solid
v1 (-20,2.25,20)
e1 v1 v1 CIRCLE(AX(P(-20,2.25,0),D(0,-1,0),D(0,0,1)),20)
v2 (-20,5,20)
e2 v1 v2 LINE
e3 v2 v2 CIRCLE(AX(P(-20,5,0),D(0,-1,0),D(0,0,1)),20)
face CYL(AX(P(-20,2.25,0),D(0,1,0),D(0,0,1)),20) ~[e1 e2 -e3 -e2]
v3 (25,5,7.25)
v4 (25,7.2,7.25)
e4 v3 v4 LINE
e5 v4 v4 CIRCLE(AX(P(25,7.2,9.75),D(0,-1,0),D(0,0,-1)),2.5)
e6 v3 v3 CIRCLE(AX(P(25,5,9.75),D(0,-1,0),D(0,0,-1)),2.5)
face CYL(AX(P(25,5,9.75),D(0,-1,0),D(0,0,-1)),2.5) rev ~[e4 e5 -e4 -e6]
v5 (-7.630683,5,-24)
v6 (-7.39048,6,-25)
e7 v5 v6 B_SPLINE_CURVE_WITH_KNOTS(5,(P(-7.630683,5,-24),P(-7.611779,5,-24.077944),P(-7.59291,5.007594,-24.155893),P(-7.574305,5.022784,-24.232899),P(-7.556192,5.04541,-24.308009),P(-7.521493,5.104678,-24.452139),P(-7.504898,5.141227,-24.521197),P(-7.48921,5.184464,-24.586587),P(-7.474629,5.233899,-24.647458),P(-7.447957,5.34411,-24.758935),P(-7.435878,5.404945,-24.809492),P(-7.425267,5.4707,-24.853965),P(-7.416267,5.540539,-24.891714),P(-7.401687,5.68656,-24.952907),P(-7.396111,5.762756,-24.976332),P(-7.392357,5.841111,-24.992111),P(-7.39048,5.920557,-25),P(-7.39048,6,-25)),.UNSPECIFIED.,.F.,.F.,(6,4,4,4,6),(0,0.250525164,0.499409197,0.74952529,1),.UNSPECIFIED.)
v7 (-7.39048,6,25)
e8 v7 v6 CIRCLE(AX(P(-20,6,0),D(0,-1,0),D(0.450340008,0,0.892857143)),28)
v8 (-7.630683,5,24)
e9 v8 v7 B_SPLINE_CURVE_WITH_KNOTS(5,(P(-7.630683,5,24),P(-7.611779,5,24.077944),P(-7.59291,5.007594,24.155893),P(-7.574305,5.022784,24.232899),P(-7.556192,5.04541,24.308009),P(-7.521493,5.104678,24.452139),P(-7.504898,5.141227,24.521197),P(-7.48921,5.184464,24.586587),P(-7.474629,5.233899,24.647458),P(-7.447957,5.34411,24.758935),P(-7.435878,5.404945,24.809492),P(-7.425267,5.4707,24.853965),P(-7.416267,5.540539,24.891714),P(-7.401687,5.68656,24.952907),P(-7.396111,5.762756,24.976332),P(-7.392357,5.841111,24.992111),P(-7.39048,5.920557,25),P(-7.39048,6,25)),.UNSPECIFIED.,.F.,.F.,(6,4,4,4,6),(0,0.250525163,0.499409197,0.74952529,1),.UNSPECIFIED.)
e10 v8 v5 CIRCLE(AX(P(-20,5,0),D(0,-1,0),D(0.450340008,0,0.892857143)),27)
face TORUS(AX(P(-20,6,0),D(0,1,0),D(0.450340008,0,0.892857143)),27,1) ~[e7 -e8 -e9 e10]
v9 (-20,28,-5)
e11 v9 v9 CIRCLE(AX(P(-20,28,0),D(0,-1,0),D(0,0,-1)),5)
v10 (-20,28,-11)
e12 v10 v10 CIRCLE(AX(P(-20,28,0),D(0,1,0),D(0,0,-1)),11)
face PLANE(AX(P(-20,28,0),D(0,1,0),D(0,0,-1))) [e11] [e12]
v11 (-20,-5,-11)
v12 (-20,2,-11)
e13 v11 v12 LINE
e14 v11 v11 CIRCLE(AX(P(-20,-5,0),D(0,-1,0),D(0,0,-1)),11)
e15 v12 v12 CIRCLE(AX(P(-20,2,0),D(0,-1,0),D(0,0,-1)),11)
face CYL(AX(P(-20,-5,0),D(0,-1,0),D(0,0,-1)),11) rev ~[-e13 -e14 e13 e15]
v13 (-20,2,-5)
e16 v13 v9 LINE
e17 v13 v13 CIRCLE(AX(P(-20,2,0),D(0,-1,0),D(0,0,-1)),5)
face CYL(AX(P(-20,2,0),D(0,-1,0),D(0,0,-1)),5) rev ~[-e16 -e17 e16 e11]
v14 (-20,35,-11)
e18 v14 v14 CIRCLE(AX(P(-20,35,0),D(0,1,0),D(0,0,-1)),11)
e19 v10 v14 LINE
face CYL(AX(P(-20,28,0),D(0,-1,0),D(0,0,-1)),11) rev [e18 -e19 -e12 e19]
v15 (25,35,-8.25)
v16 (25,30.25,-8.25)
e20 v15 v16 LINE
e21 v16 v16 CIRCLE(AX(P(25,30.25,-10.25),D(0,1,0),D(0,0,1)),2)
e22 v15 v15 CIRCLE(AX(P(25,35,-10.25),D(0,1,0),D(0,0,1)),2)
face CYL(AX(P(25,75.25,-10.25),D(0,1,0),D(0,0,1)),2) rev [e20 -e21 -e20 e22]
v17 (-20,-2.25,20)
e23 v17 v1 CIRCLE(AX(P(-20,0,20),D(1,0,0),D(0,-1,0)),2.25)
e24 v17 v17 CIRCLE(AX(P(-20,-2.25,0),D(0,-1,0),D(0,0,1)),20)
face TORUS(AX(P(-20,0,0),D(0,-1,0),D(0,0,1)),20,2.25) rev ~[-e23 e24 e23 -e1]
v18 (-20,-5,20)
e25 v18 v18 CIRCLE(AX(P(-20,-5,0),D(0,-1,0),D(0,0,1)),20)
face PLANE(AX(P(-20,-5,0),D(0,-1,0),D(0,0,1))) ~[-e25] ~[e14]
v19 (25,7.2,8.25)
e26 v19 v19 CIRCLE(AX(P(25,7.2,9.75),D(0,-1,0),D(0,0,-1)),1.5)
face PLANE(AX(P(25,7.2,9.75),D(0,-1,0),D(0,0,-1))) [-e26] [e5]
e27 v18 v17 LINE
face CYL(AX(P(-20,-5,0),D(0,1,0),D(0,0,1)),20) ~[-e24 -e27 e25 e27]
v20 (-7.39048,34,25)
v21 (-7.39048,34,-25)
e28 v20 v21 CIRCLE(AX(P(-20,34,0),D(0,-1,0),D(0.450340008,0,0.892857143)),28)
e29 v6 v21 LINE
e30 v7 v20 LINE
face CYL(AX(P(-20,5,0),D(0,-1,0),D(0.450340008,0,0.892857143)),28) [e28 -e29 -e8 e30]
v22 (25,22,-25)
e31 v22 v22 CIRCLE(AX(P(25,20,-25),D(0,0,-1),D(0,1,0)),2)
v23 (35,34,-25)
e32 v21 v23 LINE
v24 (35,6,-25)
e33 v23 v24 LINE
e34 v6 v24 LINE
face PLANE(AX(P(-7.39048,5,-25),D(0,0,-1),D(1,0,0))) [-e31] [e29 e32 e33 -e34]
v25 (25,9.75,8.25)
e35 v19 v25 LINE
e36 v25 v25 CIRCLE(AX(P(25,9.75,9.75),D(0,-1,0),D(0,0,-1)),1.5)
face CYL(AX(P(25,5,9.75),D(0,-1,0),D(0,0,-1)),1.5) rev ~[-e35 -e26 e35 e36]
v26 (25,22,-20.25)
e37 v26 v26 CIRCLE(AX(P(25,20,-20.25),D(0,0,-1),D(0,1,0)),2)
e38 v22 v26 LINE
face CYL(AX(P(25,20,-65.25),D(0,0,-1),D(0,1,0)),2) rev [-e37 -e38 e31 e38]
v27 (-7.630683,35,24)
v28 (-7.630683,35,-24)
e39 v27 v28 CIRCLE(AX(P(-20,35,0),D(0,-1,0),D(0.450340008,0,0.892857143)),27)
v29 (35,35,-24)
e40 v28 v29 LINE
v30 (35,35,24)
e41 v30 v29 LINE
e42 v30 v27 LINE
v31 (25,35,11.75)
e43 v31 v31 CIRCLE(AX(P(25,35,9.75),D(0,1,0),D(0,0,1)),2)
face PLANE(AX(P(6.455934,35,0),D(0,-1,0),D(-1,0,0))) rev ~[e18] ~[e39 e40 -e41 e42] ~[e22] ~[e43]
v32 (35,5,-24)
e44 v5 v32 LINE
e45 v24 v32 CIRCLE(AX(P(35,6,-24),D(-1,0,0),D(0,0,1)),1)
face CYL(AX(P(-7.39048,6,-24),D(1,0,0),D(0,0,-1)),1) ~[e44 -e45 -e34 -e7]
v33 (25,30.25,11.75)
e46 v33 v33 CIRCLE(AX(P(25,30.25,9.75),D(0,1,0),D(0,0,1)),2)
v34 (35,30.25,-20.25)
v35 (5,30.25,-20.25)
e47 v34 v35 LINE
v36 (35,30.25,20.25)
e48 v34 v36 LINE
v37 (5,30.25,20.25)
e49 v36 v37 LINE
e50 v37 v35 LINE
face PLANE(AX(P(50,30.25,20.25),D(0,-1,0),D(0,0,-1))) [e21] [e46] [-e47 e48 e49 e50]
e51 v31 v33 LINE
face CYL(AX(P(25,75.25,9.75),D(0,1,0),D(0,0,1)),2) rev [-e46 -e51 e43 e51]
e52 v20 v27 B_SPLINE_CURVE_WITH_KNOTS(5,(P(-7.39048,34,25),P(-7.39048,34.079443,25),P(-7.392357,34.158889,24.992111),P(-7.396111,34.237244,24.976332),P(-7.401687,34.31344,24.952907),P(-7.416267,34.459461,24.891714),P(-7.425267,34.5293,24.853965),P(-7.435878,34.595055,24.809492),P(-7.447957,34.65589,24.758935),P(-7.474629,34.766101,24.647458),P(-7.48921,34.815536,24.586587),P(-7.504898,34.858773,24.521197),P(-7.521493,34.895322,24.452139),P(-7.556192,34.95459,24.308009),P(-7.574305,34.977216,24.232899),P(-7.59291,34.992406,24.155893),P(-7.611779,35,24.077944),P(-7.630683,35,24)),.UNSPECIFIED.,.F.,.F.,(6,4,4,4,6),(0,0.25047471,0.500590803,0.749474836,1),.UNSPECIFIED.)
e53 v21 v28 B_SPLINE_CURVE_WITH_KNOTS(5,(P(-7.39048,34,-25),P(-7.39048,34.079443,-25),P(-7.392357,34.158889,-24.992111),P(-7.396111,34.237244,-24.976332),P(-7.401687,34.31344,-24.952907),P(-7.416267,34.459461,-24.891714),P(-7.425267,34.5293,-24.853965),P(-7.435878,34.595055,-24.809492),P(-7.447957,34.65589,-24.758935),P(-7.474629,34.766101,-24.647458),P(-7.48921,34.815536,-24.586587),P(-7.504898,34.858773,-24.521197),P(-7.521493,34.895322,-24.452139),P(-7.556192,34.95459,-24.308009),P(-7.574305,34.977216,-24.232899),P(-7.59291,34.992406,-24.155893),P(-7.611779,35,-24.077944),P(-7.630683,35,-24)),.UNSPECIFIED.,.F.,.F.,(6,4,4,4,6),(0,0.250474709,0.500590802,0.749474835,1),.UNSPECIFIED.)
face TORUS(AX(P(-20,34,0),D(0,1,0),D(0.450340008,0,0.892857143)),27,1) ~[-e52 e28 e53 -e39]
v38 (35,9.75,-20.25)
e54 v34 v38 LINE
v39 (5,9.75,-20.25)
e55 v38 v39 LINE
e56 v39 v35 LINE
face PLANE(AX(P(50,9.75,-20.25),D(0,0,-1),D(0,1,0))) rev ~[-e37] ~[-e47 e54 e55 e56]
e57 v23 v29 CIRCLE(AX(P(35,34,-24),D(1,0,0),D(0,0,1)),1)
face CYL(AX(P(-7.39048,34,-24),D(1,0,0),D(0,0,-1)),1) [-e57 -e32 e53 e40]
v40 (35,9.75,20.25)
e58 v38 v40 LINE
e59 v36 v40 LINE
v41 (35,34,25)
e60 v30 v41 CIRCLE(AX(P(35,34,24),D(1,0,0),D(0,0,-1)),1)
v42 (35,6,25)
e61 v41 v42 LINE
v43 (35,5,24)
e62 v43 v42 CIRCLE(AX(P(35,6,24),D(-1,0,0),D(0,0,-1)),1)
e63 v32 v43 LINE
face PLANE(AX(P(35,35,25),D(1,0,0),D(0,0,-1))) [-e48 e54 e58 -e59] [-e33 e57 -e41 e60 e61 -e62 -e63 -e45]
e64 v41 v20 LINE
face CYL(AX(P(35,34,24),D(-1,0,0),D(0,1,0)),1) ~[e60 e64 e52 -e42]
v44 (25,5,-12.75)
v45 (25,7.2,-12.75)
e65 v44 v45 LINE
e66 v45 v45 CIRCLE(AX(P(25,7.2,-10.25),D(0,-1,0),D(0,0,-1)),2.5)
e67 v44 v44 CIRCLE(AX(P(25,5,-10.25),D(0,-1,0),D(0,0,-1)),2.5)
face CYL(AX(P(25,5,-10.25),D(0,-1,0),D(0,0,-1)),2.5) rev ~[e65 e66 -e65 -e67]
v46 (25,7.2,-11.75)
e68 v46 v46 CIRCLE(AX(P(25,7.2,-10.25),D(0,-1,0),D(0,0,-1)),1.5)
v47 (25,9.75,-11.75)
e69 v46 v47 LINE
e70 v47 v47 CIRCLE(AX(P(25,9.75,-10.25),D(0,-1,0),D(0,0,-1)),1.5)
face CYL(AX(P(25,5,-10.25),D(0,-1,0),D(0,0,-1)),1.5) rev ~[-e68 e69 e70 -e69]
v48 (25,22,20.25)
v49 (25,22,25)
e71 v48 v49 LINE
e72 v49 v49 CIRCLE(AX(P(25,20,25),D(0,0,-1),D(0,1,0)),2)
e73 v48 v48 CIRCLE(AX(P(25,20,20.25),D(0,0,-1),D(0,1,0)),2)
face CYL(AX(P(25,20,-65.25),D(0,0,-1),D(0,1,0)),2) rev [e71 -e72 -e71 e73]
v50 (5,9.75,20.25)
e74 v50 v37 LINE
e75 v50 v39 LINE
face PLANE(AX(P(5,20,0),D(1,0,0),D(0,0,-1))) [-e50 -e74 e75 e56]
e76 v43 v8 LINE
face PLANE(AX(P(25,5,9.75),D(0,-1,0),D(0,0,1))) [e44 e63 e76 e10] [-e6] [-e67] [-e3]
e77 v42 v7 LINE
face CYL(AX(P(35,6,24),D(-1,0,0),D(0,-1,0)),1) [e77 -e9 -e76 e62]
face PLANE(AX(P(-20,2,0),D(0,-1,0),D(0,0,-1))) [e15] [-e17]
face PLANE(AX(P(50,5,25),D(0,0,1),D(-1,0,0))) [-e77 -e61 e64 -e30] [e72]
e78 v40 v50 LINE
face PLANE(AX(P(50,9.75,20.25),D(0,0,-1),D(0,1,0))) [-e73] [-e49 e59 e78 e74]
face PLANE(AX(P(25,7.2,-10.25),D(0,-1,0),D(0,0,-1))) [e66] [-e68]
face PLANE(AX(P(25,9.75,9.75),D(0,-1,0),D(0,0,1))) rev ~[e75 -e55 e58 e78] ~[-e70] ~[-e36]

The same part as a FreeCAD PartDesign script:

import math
import FreeCAD as App
import Part
import Sketcher

V = App.Vector


def edges_at(feature, points):
    """Names of the edges that pass closest to the given points."""
    edges = feature.Shape.Edges
    near = lambda p: min(range(len(edges)), key=lambda i: edges[i].distToShape(Part.Vertex(*p))[0])
    return sorted({f"Edge{near(p) + 1}" for p in points})


def add_polygon(sketch, points):
    """Adds a closed chain of lines whose ends are joined by coincident constraints."""
    first, n = sketch.GeometryCount, len(points)
    for a, b in zip(points, points[1:] + points[:1]):
        sketch.addGeometry(Part.LineSegment(App.Vector(*a, 0), App.Vector(*b, 0)), False)
    for i in range(n):
        sketch.addConstraint(Sketcher.Constraint("Coincident", first + i, 2, first + (i + 1) % n, 1))

doc = App.newDocument("Part")
body = doc.addObject("PartDesign::Body", "Body")

# Sketch on XY plane
sketch1 = body.newObject("Sketcher::SketchObject", "Sketch")
sketch1.AttachmentSupport = (doc.getObject("XY_Plane"), [""])
sketch1.MapMode = "FlatFace"
sketch1.addGeometry([
    Part.LineSegment(V(0, 2.2, 0), V(0, 5, 0)),  # 0
    Part.LineSegment(V(0, 5, 0), V(-20, 5, 0)),  # 1
    Part.LineSegment(V(-20, 5, 0), V(-20, -5, 0)),  # 2
    Part.LineSegment(V(-20, -5, 0), V(0, -5, 0)),  # 3
    Part.LineSegment(V(0, -5, 0), V(0, -2.2, 0)),  # 4
    Part.ArcOfCircle(Part.Circle(V(0, 0, 0), V(0, 0, 1), 2.2), math.radians(90), math.radians(270)),  # 5
], False)
sketch1.addGeometry(Part.LineSegment(V(-20, 5, 0), V(-20, -5, 0)), True)  # axis
sketch1.addConstraint([
    Sketcher.Constraint("Coincident", 0, 2, 1, 1),
    Sketcher.Constraint("Coincident", 1, 2, 2, 1),
    Sketcher.Constraint("Coincident", 2, 2, 3, 1),
    Sketcher.Constraint("Coincident", 3, 2, 4, 1),
    Sketcher.Constraint("Coincident", 4, 2, 5, 2),
    Sketcher.Constraint("Coincident", 5, 1, 0, 1),
    Sketcher.Constraint("Vertical", 0),
    Sketcher.Constraint("Horizontal", 1),
    Sketcher.Constraint("Vertical", 2),
    Sketcher.Constraint("Horizontal", 3),
    Sketcher.Constraint("Vertical", 4),
    Sketcher.Constraint("Vertical", 6),
    Sketcher.Constraint("Coincident", 5, 3, -1, 1),
    Sketcher.Constraint("Coincident", 6, 1, 1, 2),
    Sketcher.Constraint("Symmetric", 0, 2, 3, 2, -1, 1),
    Sketcher.Constraint("PointOnObject", 0, 2, -2),
    Sketcher.Constraint("Horizontal", 3, 2, 6, 2),
    Sketcher.Constraint("DistanceX", 1, 2, 1, 1, 20.0),
    Sketcher.Constraint("DistanceY", 2, 2, 2, 1, 10.0),
    Sketcher.Constraint("Radius", 5, 2.25),
])
revolution = body.newObject("PartDesign::Revolution", "Revolution")
revolution.Profile = sketch1
revolution.ReferenceAxis = (sketch1, ["Axis0"])
revolution.Angle = 360

# Sketch on XZ plane
sketch2 = body.newObject("Sketcher::SketchObject", "Sketch001")
sketch2.AttachmentSupport = (doc.getObject("XZ_Plane"), [""])
sketch2.MapMode = "FlatFace"
sketch2.AttachmentOffset = App.Placement(V(0, 0, -5), App.Rotation())
sketch2.addGeometry([
    Part.LineSegment(V(50, -25, 0), V(-7, -25, 0)),
    Part.ArcOfCircle(Part.Circle(V(-20, 0, 0), V(0, 0, 1), 28), math.radians(63), math.radians(297)),
    Part.LineSegment(V(-7, 25, 0), V(50, 25, 0)),
    Part.LineSegment(V(50, 25, 0), V(50, -25, 0)),
], False)
sketch2.addConstraint([
    Sketcher.Constraint("Coincident", 0, 2, 1, 2),
    Sketcher.Constraint("Coincident", 1, 1, 2, 1),
    Sketcher.Constraint("Coincident", 2, 2, 3, 1),
    Sketcher.Constraint("Coincident", 3, 2, 0, 1),
    Sketcher.Constraint("Horizontal", 0),
    Sketcher.Constraint("Horizontal", 2),
    Sketcher.Constraint("Vertical", 3),
    Sketcher.Constraint("Symmetric", 0, 2, 1, 1, -1),
    Sketcher.Constraint("Radius", 1, 28.0),
    Sketcher.Constraint("DistanceY", 3, 2, 3, 1, 50.0),
    Sketcher.Constraint("DistanceX", 1, 3, -1, 1, 20.0),
    Sketcher.Constraint("DistanceX", -1, 1, 2, 2, 50.0),
])
pad1 = body.newObject("PartDesign::Pad", "Pad")
pad1.Profile = sketch2
pad1.Length = 30
pad1.Reversed = True

# Sketch on XZ plane
sketch3 = body.newObject("Sketcher::SketchObject", "Sketch002")
sketch3.AttachmentSupport = (doc.getObject("XZ_Plane"), [""])
sketch3.MapMode = "FlatFace"
sketch3.AttachmentOffset = App.Placement(V(0, 0, 5), App.Rotation())
sketch3.addGeometry(Part.Circle(V(-20, 0, 0), V(0, 0, 1), 11), False)
sketch3.addConstraint([
    Sketcher.Constraint("PointOnObject", 0, 3, -1),
    Sketcher.Constraint("Diameter", 0, 22.0),
    Sketcher.Constraint("DistanceX", 0, 3, -1, 1, 20.0),
])
pocket1 = body.newObject("PartDesign::Pocket", "Pocket")
pocket1.Profile = sketch3
pocket1.Length = 7

# Sketch on XZ plane
sketch4 = body.newObject("Sketcher::SketchObject", "Sketch003")
sketch4.AttachmentSupport = (doc.getObject("XZ_Plane"), [""])
sketch4.MapMode = "FlatFace"
sketch4.AttachmentOffset = App.Placement(V(0, 0, -2), App.Rotation())
sketch4.addGeometry(Part.Circle(V(-20, 0, 0), V(0, 0, 1), 5), False)
sketch4.addConstraint([
    Sketcher.Constraint("PointOnObject", 0, 3, -1),
    Sketcher.Constraint("Diameter", 0, 10.0),
    Sketcher.Constraint("DistanceX", 0, 3, -1, 1, 20.0),
])
pocket2 = body.newObject("PartDesign::Pocket", "Pocket001")
pocket2.Profile = sketch4
pocket2.Length = 40

# Sketch on XZ plane
sketch5 = body.newObject("Sketcher::SketchObject", "Sketch004")
sketch5.AttachmentSupport = (doc.getObject("XZ_Plane"), [""])
sketch5.MapMode = "FlatFace"
sketch5.AttachmentOffset = App.Placement(V(0, 0, -28), App.Rotation())
sketch5.addGeometry(Part.Circle(V(-20, 0, 0), V(0, 0, 1), 11), False)
sketch5.addConstraint([
    Sketcher.Constraint("PointOnObject", 0, 3, -1),
    Sketcher.Constraint("Diameter", 0, 22.0),
    Sketcher.Constraint("DistanceX", 0, 3, -1, 1, 20.0),
])
pocket3 = body.newObject("PartDesign::Pocket", "Pocket002")
pocket3.Profile = sketch5
pocket3.Length = 7

# Sketch on YZ plane
sketch6 = body.newObject("Sketcher::SketchObject", "Sketch005")
sketch6.AttachmentSupport = (doc.getObject("YZ_Plane"), [""])
sketch6.MapMode = "FlatFace"
sketch6.AttachmentOffset = App.Placement(V(0, 0, 50), App.Rotation())
add_polygon(sketch6, [(30, 20), (10, 20), (10, -20), (30, -20)])  # lines 0-3
sketch6.addConstraint([
    Sketcher.Constraint("Horizontal", 0),
    Sketcher.Constraint("Vertical", 1),
    Sketcher.Constraint("Horizontal", 2),
    Sketcher.Constraint("Vertical", 3),
    Sketcher.Constraint("DistanceX", 0, 2, 0, 1, 20.5),
    Sketcher.Constraint("DistanceY", 1, 2, 1, 1, 40.5),
    Sketcher.Constraint("DistanceX", -1, 1, 0, 2, 9.75),
    Sketcher.Constraint("DistanceY", -1, 1, 0, 2, 20.25),
])
pocket4 = body.newObject("PartDesign::Pocket", "Pocket003")
pocket4.Profile = sketch6
pocket4.Length = 45

# Sketch on XZ plane
sketch7 = body.newObject("Sketcher::SketchObject", "Sketch006")
sketch7.AttachmentSupport = (doc.getObject("XZ_Plane"), [""])
sketch7.MapMode = "FlatFace"
sketch7.AttachmentOffset = App.Placement(V(0, 0, -35), App.Rotation())
add_polygon(sketch7, [(35, -25), (35, 25), (50, 25), (50, -25)])  # lines 0-3
sketch7.addConstraint([
    Sketcher.Constraint("Vertical", 0),
    Sketcher.Constraint("Horizontal", 1),
    Sketcher.Constraint("Vertical", 2),
    Sketcher.Constraint("Horizontal", 3),
    Sketcher.Constraint("DistanceX", 1, 1, 1, 2, 15.0),
    Sketcher.Constraint("DistanceY", 0, 1, 0, 2, 50.0),
    Sketcher.Constraint("DistanceX", -1, 1, 0, 2, 35.0),
    Sketcher.Constraint("DistanceY", -1, 1, 0, 2, 25.0),
])
pocket5 = body.newObject("PartDesign::Pocket", "Pocket004")
pocket5.Profile = sketch7
pocket5.Length = 45
pocket5.Reversed = True

# Sketch on XZ plane
sketch8 = body.newObject("Sketcher::SketchObject", "Sketch007")
sketch8.AttachmentSupport = (doc.getObject("XZ_Plane"), [""])
sketch8.MapMode = "FlatFace"
sketch8.AttachmentOffset = App.Placement(V(0, 0, -30.25), App.Rotation())
sketch8.addGeometry([
    Part.Circle(V(25, 9.8, 0), V(0, 0, 1), 2),
    Part.Circle(V(25, -10.2, 0), V(0, 0, 1), 2),
], False)
sketch8.addConstraint([
    Sketcher.Constraint("Equal", 0, 1),
    Sketcher.Constraint("Vertical", 0, 3, 1, 3),
    Sketcher.Constraint("Diameter", 0, 4.0),
    Sketcher.Constraint("DistanceX", -1, 1, 0, 3, 25.0),
    Sketcher.Constraint("DistanceY", 1, 3, 0, 3, 20.0),
    Sketcher.Constraint("DistanceY", -1, 1, 0, 3, 9.75),
])
pocket6 = body.newObject("PartDesign::Pocket", "Pocket005")
pocket6.Profile = sketch8
pocket6.Type = "ThroughAll"
pocket6.Midplane = True

# Sketch on XY plane
sketch9 = body.newObject("Sketcher::SketchObject", "Sketch008")
sketch9.AttachmentSupport = (doc.getObject("XY_Plane"), [""])
sketch9.MapMode = "FlatFace"
sketch9.AttachmentOffset = App.Placement(V(0, 0, -20.25), App.Rotation())
sketch9.addGeometry(Part.Circle(V(25, 20, 0), V(0, 0, 1), 2), False)
sketch9.addConstraint([
    Sketcher.Constraint("Diameter", 0, 4.0),
    Sketcher.Constraint("DistanceX", -1, 1, 0, 3, 25.0),
    Sketcher.Constraint("DistanceY", -1, 1, 0, 3, 20.0),
])
pocket7 = body.newObject("PartDesign::Pocket", "Pocket006")
pocket7.Profile = sketch9
pocket7.Type = "ThroughAll"
pocket7.Midplane = True
doc.recompute()

fillet = body.newObject("PartDesign::Fillet", "Fillet")
fillet.Base = (pocket7, edges_at(pocket7, [
    (-48, 5, 0),
    (13.805, 5, 25),
    (-48, 35, 0),
    (13.805, 35, 25),
    (13.805, 35, -25),
    (13.805, 5, -25),
]))
fillet.Radius = 1

# Sketch on XZ plane
sketch10 = body.newObject("Sketcher::SketchObject", "Sketch009")
sketch10.AttachmentSupport = (doc.getObject("XZ_Plane"), [""])
sketch10.MapMode = "FlatFace"
sketch10.AttachmentOffset = App.Placement(V(0, 0, -5), App.Rotation())
sketch10.addGeometry([
    Part.Circle(V(25, 9.8, 0), V(0, 0, 1), 2),
    Part.Circle(V(25, 9.8, 0), V(0, 0, 1), 1.5),
    Part.Circle(V(25, -10.2, 0), V(0, 0, 1), 2),
    Part.Circle(V(25, -10.2, 0), V(0, 0, 1), 1.5),
], False)
sketch10.addConstraint([
    Sketcher.Constraint("Coincident", 1, 3, 0, 3),
    Sketcher.Constraint("Coincident", 3, 3, 2, 3),
    Sketcher.Constraint("Equal", 0, 2),
    Sketcher.Constraint("Equal", 1, 3),
    Sketcher.Constraint("Vertical", 1, 3, 2, 3),
    Sketcher.Constraint("Diameter", 0, 4.0),
    Sketcher.Constraint("Diameter", 1, 3.0),
    Sketcher.Constraint("DistanceX", -1, 1, 0, 3, 25.0),
    Sketcher.Constraint("DistanceY", 2, 3, 0, 3, 20.0),
    Sketcher.Constraint("DistanceY", -1, 1, 0, 3, 9.75),
])
pad2 = body.newObject("PartDesign::Pad", "Pad001")
pad2.Profile = sketch10
pad2.Length = 4.75
pad2.Reversed = True

# Sketch on XZ plane
sketch11 = body.newObject("Sketcher::SketchObject", "Sketch010")
sketch11.AttachmentSupport = (doc.getObject("XZ_Plane"), [""])
sketch11.MapMode = "FlatFace"
sketch11.AttachmentOffset = App.Placement(V(0, 0, -5), App.Rotation())
sketch11.addGeometry([
    Part.Circle(V(25, 9.8, 0), V(0, 0, 1), 2.5),
    Part.Circle(V(25, -10.2, 0), V(0, 0, 1), 2.5),
], False)
sketch11.addConstraint([
    Sketcher.Constraint("Equal", 0, 1),
    Sketcher.Constraint("Vertical", 0, 3, 1, 3),
    Sketcher.Constraint("Diameter", 0, 5.0),
    Sketcher.Constraint("DistanceX", -1, 1, 0, 3, 25.0),
    Sketcher.Constraint("DistanceY", 1, 3, 0, 3, 20.0),
    Sketcher.Constraint("DistanceY", -1, 1, 0, 3, 9.75),
])
pocket8 = body.newObject("PartDesign::Pocket", "Pocket007")
pocket8.Profile = sketch11
pocket8.Length = 2.2

doc.recompute()
